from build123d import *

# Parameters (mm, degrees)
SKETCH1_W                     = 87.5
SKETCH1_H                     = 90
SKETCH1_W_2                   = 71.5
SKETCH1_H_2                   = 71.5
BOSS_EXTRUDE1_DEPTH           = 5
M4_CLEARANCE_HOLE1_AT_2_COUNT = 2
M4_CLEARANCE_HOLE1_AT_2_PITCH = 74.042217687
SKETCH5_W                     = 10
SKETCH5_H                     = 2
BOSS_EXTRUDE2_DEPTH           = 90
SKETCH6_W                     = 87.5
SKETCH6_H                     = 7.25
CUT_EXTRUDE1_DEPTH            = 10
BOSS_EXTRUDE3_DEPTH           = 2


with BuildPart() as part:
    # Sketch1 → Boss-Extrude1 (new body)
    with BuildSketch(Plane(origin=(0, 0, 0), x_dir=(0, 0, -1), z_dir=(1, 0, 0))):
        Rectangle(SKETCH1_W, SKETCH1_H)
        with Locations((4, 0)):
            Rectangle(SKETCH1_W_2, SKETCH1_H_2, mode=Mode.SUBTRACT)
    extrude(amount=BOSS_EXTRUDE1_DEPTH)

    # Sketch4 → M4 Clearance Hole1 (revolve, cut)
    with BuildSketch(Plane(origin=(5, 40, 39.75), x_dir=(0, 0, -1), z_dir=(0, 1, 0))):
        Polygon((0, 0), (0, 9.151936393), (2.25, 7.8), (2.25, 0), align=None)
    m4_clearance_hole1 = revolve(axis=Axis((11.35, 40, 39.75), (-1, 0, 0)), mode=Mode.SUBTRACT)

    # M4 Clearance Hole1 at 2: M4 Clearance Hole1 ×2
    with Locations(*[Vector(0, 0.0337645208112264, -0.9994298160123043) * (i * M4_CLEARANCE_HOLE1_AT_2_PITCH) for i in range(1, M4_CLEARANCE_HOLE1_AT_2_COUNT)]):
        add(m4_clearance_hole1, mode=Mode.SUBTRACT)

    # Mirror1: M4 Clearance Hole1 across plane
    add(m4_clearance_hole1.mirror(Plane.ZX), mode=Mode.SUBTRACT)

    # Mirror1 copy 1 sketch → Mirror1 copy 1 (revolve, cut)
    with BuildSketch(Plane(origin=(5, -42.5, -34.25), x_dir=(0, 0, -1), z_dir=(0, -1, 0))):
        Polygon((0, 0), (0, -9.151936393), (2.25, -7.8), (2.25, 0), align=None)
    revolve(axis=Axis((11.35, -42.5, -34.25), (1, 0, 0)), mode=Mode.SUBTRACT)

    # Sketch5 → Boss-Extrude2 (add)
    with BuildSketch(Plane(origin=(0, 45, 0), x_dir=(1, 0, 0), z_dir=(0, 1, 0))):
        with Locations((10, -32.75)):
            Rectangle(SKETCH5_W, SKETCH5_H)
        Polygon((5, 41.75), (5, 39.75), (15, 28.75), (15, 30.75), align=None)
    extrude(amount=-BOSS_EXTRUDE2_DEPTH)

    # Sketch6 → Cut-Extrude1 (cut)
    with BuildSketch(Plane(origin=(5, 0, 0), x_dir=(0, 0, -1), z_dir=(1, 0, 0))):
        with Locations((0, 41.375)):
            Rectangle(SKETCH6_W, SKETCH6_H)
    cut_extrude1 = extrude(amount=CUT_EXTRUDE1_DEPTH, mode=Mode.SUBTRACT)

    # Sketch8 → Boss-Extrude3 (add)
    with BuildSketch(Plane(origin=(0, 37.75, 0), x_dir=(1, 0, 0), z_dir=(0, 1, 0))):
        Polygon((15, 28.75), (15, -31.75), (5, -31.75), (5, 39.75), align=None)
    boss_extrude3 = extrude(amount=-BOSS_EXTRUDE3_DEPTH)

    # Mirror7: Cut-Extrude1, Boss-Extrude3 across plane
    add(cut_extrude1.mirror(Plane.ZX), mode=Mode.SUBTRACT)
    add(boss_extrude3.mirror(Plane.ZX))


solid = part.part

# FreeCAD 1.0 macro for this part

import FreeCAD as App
import Part
import Sketcher
Q = App.Units.Quantity


def add_polygon(sketch, points):
    """Adds a closed chain of lines whose ends are joined by coincident constraints."""
    first, n = sketch.GeometryCount, len(points)
    for a, b in zip(points, points[1:] + points[:1]):
        sketch.addGeometry(Part.LineSegment(App.Vector(*a, 0), App.Vector(*b, 0)), False)
    for i in range(n):
        sketch.addConstraint(Sketcher.Constraint("Coincident", first + i, 2, first + (i + 1) % n, 1))

doc = App.newDocument("Part")
params = doc.addObject("Spreadsheet::Sheet", "Params")
for row, (alias, value) in enumerate([
    ("sketch1_width", "90 mm"),
    ("sketch1_width2", "71.5 mm"),
    ("sketch1_height", "87.5 mm"),
    ("pad1_length", "5 mm"),
    ("sketch2_width", "7.8 mm"),
    ("sketch2_height", "2.25 mm"),
    ("groove_angle", "360 deg"),
    ("linearpattern_pitch", "74.042218 mm"),
    ("sketch3_width", "7.8 mm"),
    ("sketch3_height", "2.25 mm"),
    ("groove2_angle", "360 deg"),
    ("sketch4_width", "10 mm"),
    ("sketch4_height", "2 mm"),
    ("pad2_length", "90 mm"),
    ("sketch5_height", "87.5 mm"),
    ("sketch5_width", "7.25 mm"),
    ("pocket1_length", "10 mm"),
    ("sketch6_width", "10 mm"),
    ("sketch6_height", "60.5 mm"),
    ("sketch6_height2", "71.5 mm"),
    ("pad3_length", "2 mm"),
], start=1):
    params.set(f"A{row}", alias)
    params.set(f"B{row}", "=" + value)
    params.setAlias(f"B{row}", alias)

body = doc.addObject("PartDesign::Body", "Body")

# Sketch on YZ plane
sketch1 = body.newObject("Sketcher::SketchObject", "Sketch")
sketch1.AttachmentSupport = (doc.getObject("YZ_Plane"), [""])
sketch1.MapMode = "FlatFace"
add_polygon(sketch1, [(45, 44), (-45, 44), (-45, -44), (45, -44)])  # lines 0-3
add_polygon(sketch1, [(-36, -40), (-36, 32), (36, 32), (36, -40)])  # lines 4-7
sketch1.addConstraint([
    Sketcher.Constraint("Horizontal", 0),
    Sketcher.Constraint("Vertical", 1),
    Sketcher.Constraint("Horizontal", 2),
    Sketcher.Constraint("Vertical", 3),
    Sketcher.Constraint("Vertical", 4),
    Sketcher.Constraint("Horizontal", 5),
    Sketcher.Constraint("Vertical", 6),
    Sketcher.Constraint("Horizontal", 7),
    Sketcher.Constraint("Symmetric", 0, 2, 2, 2, -1, 1),
    Sketcher.Constraint("Equal", 7, 4),
    Sketcher.Constraint("DistanceX", 0, 2, 0, 1, Q("90 mm")),
    Sketcher.Constraint("DistanceX", 5, 1, 5, 2, Q("71.5 mm")),
    Sketcher.Constraint("DistanceY", 1, 2, 1, 1, Q("87.5 mm")),
    Sketcher.Constraint("DistanceY", 4, 2, 0, 2, Q("12 mm")),
    Sketcher.Constraint("DistanceX", 4, 2, -1, 1, Q("35.75 mm")),
])
sketch1.setExpression("Constraints[18]", "Params.sketch1_width")
sketch1.setExpression("Constraints[19]", "Params.sketch1_width2")
sketch1.setExpression("Constraints[20]", "Params.sketch1_height")
pad1 = body.newObject("PartDesign::Pad", "Pad")
pad1.Profile = sketch1
pad1.setExpression("Length", "Params.pad1_length")

# Sketch on XZ plane
sketch2 = body.newObject("Sketcher::SketchObject", "Sketch001")
sketch2.AttachmentSupport = (doc.getObject("XZ_Plane"), [""])
sketch2.MapMode = "FlatFace"
sketch2.AttachmentOffset = App.Placement(App.Vector(0, 0, -40), App.Rotation())
add_polygon(sketch2, [(-4.2, 39.8), (5, 39.8), (5, 37.5), (-2.8, 37.5)])  # lines 0-3
sketch2.addGeometry(Part.LineSegment(App.Vector(5, 39.8, 0), App.Vector(-4.2, 39.8, 0)), True)  # axis
sketch2.addConstraint([
    Sketcher.Constraint("Horizontal", 0),
    Sketcher.Constraint("Vertical", 1),
    Sketcher.Constraint("Horizontal", 2),
    Sketcher.Constraint("Horizontal", 4),
    Sketcher.Constraint("Coincident", 4, 1, 0, 2),
    Sketcher.Constraint("Equal", 0, 4),
    Sketcher.Constraint("Angle", 3, Q("121 deg")),
    Sketcher.Constraint("DistanceX", 2, 2, 2, 1, Q("7.8 mm")),
    Sketcher.Constraint("DistanceX", -1, 1, 0, 2, Q("5 mm")),
    Sketcher.Constraint("DistanceY", 1, 2, 1, 1, Q("2.25 mm")),
    Sketcher.Constraint("DistanceY", -1, 1, 1, 2, Q("37.5 mm")),
])
sketch2.setExpression("Constraints[11]", "Params.sketch2_width")
sketch2.setExpression("Constraints[13]", "Params.sketch2_height")
groove = body.newObject("PartDesign::Groove", "Groove")
groove.Profile = sketch2
groove.ReferenceAxis = (sketch2, ["Axis0"])
groove.setExpression("Angle", "Params.groove_angle")
doc.recompute()

datumline = body.newObject("PartDesign::Line", "DatumLine")
datumline.Placement = App.Placement(App.Vector(0, 0, 0), App.Rotation(App.Vector(0, 0, 1), App.Vector(0, 0.033764521, -0.999429816)))
linearpattern = body.newObject("PartDesign::LinearPattern", "LinearPattern")
linearpattern.Originals = [groove]
linearpattern.Direction = (datumline, [""])
linearpattern.Mode = "offset"
linearpattern.setExpression("Offset", "Params.linearpattern_pitch")
linearpattern.Occurrences = 2
body.Tip = linearpattern
doc.recompute()

mirrored = body.newObject("PartDesign::Mirrored", "Mirrored")
mirrored.Originals = [groove]
mirrored.MirrorPlane = (doc.getObject("XZ_Plane"), [""])
body.Tip = mirrored

# Sketch on XZ plane
sketch3 = body.newObject("Sketcher::SketchObject", "Sketch002")
sketch3.AttachmentSupport = (doc.getObject("XZ_Plane"), [""])
sketch3.MapMode = "FlatFace"
sketch3.AttachmentOffset = App.Placement(App.Vector(0, 0, 42.5), App.Rotation())
add_polygon(sketch3, [(5, -34.2), (-4.2, -34.2), (-2.8, -36.5), (5, -36.5)])  # lines 0-3
sketch3.addGeometry(Part.LineSegment(App.Vector(-4.2, -34.2, 0), App.Vector(5, -34.2, 0)), True)  # axis
sketch3.addConstraint([
    Sketcher.Constraint("Horizontal", 0),
    Sketcher.Constraint("Horizontal", 2),
    Sketcher.Constraint("Vertical", 3),
    Sketcher.Constraint("Horizontal", 4),
    Sketcher.Constraint("Coincident", 4, 1, 0, 2),
    Sketcher.Constraint("Vertical", 2, 2, 4, 2),
    Sketcher.Constraint("Angle", 1, Q("-59 deg")),
    Sketcher.Constraint("DistanceX", 2, 1, 2, 2, Q("7.8 mm")),
    Sketcher.Constraint("DistanceX", -1, 1, 2, 2, Q("5 mm")),
    Sketcher.Constraint("DistanceY", 3, 1, 3, 2, Q("2.25 mm")),
    Sketcher.Constraint("DistanceY", 1, 2, -1, 1, Q("36.5 mm")),
])
sketch3.setExpression("Constraints[11]", "Params.sketch3_width")
sketch3.setExpression("Constraints[13]", "Params.sketch3_height")
groove2 = body.newObject("PartDesign::Groove", "Groove001")
groove2.Profile = sketch3
groove2.ReferenceAxis = (sketch3, ["Axis0"])
groove2.setExpression("Angle", "Params.groove2_angle")

# Sketch on XZ plane
sketch4 = body.newObject("Sketcher::SketchObject", "Sketch003")
sketch4.AttachmentSupport = (doc.getObject("XZ_Plane"), [""])
sketch4.MapMode = "FlatFace"
sketch4.AttachmentOffset = App.Placement(App.Vector(0, 0, -45), App.Rotation())
add_polygon(sketch4, [(5, 31.8), (5, 33.8), (15, 33.8), (15, 31.8)])  # lines 0-3
add_polygon(sketch4, [(5, -41.8), (5, -39.8), (15, -28.8), (15, -30.8)])  # lines 4-7
sketch4.addConstraint([
    Sketcher.Constraint("Vertical", 0),
    Sketcher.Constraint("Horizontal", 1),
    Sketcher.Constraint("Vertical", 2),
    Sketcher.Constraint("Horizontal", 3),
    Sketcher.Constraint("Vertical", 4),
    Sketcher.Constraint("Vertical", 6),
    Sketcher.Constraint("Parallel", 5, 7),
    Sketcher.Constraint("Vertical", 3, 2, 4, 2),
    Sketcher.Constraint("Vertical", 2, 2, 5, 2),
    Sketcher.Constraint("Equal", 2, 4),
    Sketcher.Constraint("DistanceX", 1, 1, 1, 2, Q("10 mm")),
    Sketcher.Constraint("DistanceY", 0, 1, 0, 2, Q("2 mm")),
    Sketcher.Constraint("DistanceX", -1, 1, 0, 2, Q("5 mm")),
    Sketcher.Constraint("DistanceY", 4, 2, 5, 2, Q("11 mm")),
    Sketcher.Constraint("DistanceY", 4, 2, 3, 2, Q("71.5 mm")),
    Sketcher.Constraint("DistanceY", -1, 1, 0, 2, Q("33.75 mm")),
])
sketch4.setExpression("Constraints[18]", "Params.sketch4_width")
sketch4.setExpression("Constraints[19]", "Params.sketch4_height")
pad2 = body.newObject("PartDesign::Pad", "Pad001")
pad2.Profile = sketch4
pad2.setExpression("Length", "Params.pad2_length")

# Sketch on YZ plane
sketch5 = body.newObject("Sketcher::SketchObject", "Sketch004")
sketch5.AttachmentSupport = (doc.getObject("YZ_Plane"), [""])
sketch5.MapMode = "FlatFace"
sketch5.AttachmentOffset = App.Placement(App.Vector(0, 0, 5), App.Rotation())
add_polygon(sketch5, [(45, 44), (38, 44), (38, -44), (45, -44)])  # lines 0-3
sketch5.addConstraint([
    Sketcher.Constraint("Horizontal", 0),
    Sketcher.Constraint("Vertical", 1),
    Sketcher.Constraint("Horizontal", 2),
    Sketcher.Constraint("Vertical", 3),
    Sketcher.Constraint("DistanceY", 1, 2, 1, 1, Q("87.5 mm")),
    Sketcher.Constraint("DistanceX", -1, 1, 2, 2, Q("45 mm")),
    Sketcher.Constraint("DistanceX", 0, 2, 0, 1, Q("7.25 mm")),
    Sketcher.Constraint("DistanceY", -1, 1, 0, 2, Q("43.75 mm")),
])
sketch5.setExpression("Constraints[8]", "Params.sketch5_height")
sketch5.setExpression("Constraints[10]", "Params.sketch5_width")
pocket1 = body.newObject("PartDesign::Pocket", "Pocket")
pocket1.Profile = sketch5
pocket1.setExpression("Length", "Params.pocket1_length")
pocket1.Reversed = True

# Sketch on XZ plane
sketch6 = body.newObject("Sketcher::SketchObject", "Sketch005")
sketch6.AttachmentSupport = (doc.getObject("XZ_Plane"), [""])
sketch6.MapMode = "FlatFace"
sketch6.AttachmentOffset = App.Placement(App.Vector(0, 0, -37.75), App.Rotation())
add_polygon(sketch6, [(15, 32), (15, -29), (5, -40), (5, 32)])  # lines 0-3
sketch6.addConstraint([
    Sketcher.Constraint("Vertical", 0),
    Sketcher.Constraint("Vertical", 2),
    Sketcher.Constraint("Horizontal", 3),
    Sketcher.Constraint("DistanceX", 3, 1, 3, 2, Q("10 mm")),
    Sketcher.Constraint("DistanceY", 0, 2, 0, 1, Q("60.5 mm")),
    Sketcher.Constraint("DistanceY", 2, 1, 2, 2, Q("71.5 mm")),
    Sketcher.Constraint("DistanceX", -1, 1, 0, 2, Q("15 mm")),
    Sketcher.Constraint("DistanceY", 0, 2, -1, 1, Q("28.75 mm")),
])
sketch6.setExpression("Constraints[7]", "Params.sketch6_width")
sketch6.setExpression("Constraints[8]", "Params.sketch6_height")
sketch6.setExpression("Constraints[9]", "Params.sketch6_height2")
pad3 = body.newObject("PartDesign::Pad", "Pad002")
pad3.Profile = sketch6
pad3.setExpression("Length", "Params.pad3_length")
doc.recompute()

mirrored2 = body.newObject("PartDesign::Mirrored", "Mirrored001")
mirrored2.Originals = [pocket1, pad3]
mirrored2.MirrorPlane = (doc.getObject("XZ_Plane"), [""])
body.Tip = mirrored2

doc.recompute()
